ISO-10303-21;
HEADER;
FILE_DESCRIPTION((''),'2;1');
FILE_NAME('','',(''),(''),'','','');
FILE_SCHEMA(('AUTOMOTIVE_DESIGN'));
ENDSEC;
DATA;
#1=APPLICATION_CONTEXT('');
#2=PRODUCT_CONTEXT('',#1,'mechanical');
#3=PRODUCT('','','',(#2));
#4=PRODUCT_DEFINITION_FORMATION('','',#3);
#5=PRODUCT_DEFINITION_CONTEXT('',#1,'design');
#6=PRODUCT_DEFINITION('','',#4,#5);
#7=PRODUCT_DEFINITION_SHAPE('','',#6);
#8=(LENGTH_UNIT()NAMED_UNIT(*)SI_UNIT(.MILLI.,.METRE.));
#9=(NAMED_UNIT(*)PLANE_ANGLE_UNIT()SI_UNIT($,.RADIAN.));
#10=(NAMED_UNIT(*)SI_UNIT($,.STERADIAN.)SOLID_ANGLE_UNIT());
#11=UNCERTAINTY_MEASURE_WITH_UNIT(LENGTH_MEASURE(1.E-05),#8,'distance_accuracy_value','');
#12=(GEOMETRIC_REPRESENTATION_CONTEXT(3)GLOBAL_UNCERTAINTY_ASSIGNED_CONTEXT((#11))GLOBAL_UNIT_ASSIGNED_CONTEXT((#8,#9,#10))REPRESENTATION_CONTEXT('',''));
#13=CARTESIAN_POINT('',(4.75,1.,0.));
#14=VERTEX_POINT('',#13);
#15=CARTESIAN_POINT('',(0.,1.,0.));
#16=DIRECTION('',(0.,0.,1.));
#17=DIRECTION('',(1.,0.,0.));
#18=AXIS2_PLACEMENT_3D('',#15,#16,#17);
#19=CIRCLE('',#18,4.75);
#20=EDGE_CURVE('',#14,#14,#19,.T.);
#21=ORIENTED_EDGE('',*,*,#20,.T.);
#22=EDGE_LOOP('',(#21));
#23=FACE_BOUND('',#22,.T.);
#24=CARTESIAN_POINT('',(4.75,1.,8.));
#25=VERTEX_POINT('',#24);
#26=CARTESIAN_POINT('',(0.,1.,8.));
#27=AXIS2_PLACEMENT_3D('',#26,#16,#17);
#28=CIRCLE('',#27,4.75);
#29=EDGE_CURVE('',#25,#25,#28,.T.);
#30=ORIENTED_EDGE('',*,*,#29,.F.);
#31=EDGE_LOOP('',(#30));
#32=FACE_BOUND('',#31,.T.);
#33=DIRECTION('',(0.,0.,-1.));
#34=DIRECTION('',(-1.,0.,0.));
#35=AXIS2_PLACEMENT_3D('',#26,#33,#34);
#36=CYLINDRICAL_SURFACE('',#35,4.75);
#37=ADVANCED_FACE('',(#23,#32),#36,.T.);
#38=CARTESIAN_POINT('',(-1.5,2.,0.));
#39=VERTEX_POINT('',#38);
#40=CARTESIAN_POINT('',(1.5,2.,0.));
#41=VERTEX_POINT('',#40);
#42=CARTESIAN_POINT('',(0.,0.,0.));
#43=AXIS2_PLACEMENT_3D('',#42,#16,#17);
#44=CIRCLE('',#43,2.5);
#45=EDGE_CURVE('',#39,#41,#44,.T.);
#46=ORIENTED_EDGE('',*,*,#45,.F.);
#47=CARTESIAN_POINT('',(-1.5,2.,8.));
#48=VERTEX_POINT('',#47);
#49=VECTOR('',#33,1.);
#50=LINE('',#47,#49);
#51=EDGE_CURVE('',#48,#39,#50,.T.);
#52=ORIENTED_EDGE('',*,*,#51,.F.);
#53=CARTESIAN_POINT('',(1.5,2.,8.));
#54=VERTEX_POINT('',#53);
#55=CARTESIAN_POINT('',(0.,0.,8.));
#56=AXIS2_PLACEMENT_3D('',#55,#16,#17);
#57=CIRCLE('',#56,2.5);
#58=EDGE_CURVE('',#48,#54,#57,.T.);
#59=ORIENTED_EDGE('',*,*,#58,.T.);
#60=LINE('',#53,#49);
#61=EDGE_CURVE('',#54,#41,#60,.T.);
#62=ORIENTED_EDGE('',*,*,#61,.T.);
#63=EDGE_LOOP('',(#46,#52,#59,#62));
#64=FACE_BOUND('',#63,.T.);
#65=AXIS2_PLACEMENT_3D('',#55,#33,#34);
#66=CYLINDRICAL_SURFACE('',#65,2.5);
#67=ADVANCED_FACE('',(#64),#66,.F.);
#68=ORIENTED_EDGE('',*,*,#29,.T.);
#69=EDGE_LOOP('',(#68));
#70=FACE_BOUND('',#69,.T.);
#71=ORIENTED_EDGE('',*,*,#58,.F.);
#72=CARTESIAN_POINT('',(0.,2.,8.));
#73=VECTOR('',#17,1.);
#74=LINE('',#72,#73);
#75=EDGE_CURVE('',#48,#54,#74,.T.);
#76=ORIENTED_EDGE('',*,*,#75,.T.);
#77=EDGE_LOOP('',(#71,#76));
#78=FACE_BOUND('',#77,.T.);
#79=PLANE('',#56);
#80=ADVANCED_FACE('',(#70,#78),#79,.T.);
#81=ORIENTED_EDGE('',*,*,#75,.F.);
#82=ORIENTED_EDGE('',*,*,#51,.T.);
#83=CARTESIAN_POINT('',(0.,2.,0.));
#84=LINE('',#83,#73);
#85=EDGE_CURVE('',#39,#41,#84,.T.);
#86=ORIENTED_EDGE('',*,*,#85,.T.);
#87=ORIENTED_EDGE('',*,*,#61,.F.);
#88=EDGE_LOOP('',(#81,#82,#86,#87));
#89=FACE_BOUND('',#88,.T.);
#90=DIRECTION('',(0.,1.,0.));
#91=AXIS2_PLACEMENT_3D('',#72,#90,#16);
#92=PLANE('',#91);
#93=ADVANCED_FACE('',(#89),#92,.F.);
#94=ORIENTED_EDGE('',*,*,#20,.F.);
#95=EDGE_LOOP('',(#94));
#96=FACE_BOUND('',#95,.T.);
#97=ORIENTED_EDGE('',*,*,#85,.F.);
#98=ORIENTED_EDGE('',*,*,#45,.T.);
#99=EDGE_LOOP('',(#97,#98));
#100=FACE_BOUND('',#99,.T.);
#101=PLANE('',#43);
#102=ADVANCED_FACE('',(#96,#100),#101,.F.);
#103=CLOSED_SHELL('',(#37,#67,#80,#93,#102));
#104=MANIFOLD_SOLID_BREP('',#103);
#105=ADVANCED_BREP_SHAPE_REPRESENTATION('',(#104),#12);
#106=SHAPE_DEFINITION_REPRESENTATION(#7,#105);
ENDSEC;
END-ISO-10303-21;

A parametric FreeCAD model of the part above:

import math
import FreeCAD as App
import Part
import Sketcher

V = App.Vector
Q = App.Units.Quantity

doc = App.newDocument("Part")
body = doc.addObject("PartDesign::Body", "Body")

# Sketch on XY plane
sketch1 = body.newObject("Sketcher::SketchObject", "Sketch")
sketch1.AttachmentSupport = (doc.getObject("XY_Plane"), [""])
sketch1.MapMode = "FlatFace"
sketch1.addGeometry(Part.Circle(V(0, 1, 0), V(0, 0, 1), 4.8), False)
sketch1.addGeometry(Part.ArcOfCircle(Part.Circle(V(0, 0, 0), V(0, 0, 1), 2.5), math.radians(127), math.radians(413)), False)
sketch1.addGeometry(Part.LineSegment(V(-1.5, 2, 0), V(1.5, 2, 0)), False)
sketch1.addConstraint(Sketcher.Constraint("Coincident", 1, 1, 2, 1))
sketch1.addConstraint(Sketcher.Constraint("Coincident", 2, 2, 1, 2))
sketch1.addConstraint(Sketcher.Constraint("Horizontal", 2))
sketch1.addConstraint(Sketcher.Constraint("Coincident", 1, 3, -1, 1))
sketch1.addConstraint(Sketcher.Constraint("PointOnObject", 0, 3, -2))
sketch1.addConstraint(Sketcher.Constraint("Diameter", 0, Q("9.5 mm")))
sketch1.addConstraint(Sketcher.Constraint("Radius", 1, Q("2.5 mm")))
sketch1.addConstraint(Sketcher.Constraint("DistanceX", 2, 1, 2, 2, Q("3 mm")))
sketch1.addConstraint(Sketcher.Constraint("DistanceY", -1, 1, 0, 3, Q("1 mm")))
pad1 = body.newObject("PartDesign::Pad", "Pad")
pad1.Profile = sketch1
pad1.Length = 8

doc.recompute()
